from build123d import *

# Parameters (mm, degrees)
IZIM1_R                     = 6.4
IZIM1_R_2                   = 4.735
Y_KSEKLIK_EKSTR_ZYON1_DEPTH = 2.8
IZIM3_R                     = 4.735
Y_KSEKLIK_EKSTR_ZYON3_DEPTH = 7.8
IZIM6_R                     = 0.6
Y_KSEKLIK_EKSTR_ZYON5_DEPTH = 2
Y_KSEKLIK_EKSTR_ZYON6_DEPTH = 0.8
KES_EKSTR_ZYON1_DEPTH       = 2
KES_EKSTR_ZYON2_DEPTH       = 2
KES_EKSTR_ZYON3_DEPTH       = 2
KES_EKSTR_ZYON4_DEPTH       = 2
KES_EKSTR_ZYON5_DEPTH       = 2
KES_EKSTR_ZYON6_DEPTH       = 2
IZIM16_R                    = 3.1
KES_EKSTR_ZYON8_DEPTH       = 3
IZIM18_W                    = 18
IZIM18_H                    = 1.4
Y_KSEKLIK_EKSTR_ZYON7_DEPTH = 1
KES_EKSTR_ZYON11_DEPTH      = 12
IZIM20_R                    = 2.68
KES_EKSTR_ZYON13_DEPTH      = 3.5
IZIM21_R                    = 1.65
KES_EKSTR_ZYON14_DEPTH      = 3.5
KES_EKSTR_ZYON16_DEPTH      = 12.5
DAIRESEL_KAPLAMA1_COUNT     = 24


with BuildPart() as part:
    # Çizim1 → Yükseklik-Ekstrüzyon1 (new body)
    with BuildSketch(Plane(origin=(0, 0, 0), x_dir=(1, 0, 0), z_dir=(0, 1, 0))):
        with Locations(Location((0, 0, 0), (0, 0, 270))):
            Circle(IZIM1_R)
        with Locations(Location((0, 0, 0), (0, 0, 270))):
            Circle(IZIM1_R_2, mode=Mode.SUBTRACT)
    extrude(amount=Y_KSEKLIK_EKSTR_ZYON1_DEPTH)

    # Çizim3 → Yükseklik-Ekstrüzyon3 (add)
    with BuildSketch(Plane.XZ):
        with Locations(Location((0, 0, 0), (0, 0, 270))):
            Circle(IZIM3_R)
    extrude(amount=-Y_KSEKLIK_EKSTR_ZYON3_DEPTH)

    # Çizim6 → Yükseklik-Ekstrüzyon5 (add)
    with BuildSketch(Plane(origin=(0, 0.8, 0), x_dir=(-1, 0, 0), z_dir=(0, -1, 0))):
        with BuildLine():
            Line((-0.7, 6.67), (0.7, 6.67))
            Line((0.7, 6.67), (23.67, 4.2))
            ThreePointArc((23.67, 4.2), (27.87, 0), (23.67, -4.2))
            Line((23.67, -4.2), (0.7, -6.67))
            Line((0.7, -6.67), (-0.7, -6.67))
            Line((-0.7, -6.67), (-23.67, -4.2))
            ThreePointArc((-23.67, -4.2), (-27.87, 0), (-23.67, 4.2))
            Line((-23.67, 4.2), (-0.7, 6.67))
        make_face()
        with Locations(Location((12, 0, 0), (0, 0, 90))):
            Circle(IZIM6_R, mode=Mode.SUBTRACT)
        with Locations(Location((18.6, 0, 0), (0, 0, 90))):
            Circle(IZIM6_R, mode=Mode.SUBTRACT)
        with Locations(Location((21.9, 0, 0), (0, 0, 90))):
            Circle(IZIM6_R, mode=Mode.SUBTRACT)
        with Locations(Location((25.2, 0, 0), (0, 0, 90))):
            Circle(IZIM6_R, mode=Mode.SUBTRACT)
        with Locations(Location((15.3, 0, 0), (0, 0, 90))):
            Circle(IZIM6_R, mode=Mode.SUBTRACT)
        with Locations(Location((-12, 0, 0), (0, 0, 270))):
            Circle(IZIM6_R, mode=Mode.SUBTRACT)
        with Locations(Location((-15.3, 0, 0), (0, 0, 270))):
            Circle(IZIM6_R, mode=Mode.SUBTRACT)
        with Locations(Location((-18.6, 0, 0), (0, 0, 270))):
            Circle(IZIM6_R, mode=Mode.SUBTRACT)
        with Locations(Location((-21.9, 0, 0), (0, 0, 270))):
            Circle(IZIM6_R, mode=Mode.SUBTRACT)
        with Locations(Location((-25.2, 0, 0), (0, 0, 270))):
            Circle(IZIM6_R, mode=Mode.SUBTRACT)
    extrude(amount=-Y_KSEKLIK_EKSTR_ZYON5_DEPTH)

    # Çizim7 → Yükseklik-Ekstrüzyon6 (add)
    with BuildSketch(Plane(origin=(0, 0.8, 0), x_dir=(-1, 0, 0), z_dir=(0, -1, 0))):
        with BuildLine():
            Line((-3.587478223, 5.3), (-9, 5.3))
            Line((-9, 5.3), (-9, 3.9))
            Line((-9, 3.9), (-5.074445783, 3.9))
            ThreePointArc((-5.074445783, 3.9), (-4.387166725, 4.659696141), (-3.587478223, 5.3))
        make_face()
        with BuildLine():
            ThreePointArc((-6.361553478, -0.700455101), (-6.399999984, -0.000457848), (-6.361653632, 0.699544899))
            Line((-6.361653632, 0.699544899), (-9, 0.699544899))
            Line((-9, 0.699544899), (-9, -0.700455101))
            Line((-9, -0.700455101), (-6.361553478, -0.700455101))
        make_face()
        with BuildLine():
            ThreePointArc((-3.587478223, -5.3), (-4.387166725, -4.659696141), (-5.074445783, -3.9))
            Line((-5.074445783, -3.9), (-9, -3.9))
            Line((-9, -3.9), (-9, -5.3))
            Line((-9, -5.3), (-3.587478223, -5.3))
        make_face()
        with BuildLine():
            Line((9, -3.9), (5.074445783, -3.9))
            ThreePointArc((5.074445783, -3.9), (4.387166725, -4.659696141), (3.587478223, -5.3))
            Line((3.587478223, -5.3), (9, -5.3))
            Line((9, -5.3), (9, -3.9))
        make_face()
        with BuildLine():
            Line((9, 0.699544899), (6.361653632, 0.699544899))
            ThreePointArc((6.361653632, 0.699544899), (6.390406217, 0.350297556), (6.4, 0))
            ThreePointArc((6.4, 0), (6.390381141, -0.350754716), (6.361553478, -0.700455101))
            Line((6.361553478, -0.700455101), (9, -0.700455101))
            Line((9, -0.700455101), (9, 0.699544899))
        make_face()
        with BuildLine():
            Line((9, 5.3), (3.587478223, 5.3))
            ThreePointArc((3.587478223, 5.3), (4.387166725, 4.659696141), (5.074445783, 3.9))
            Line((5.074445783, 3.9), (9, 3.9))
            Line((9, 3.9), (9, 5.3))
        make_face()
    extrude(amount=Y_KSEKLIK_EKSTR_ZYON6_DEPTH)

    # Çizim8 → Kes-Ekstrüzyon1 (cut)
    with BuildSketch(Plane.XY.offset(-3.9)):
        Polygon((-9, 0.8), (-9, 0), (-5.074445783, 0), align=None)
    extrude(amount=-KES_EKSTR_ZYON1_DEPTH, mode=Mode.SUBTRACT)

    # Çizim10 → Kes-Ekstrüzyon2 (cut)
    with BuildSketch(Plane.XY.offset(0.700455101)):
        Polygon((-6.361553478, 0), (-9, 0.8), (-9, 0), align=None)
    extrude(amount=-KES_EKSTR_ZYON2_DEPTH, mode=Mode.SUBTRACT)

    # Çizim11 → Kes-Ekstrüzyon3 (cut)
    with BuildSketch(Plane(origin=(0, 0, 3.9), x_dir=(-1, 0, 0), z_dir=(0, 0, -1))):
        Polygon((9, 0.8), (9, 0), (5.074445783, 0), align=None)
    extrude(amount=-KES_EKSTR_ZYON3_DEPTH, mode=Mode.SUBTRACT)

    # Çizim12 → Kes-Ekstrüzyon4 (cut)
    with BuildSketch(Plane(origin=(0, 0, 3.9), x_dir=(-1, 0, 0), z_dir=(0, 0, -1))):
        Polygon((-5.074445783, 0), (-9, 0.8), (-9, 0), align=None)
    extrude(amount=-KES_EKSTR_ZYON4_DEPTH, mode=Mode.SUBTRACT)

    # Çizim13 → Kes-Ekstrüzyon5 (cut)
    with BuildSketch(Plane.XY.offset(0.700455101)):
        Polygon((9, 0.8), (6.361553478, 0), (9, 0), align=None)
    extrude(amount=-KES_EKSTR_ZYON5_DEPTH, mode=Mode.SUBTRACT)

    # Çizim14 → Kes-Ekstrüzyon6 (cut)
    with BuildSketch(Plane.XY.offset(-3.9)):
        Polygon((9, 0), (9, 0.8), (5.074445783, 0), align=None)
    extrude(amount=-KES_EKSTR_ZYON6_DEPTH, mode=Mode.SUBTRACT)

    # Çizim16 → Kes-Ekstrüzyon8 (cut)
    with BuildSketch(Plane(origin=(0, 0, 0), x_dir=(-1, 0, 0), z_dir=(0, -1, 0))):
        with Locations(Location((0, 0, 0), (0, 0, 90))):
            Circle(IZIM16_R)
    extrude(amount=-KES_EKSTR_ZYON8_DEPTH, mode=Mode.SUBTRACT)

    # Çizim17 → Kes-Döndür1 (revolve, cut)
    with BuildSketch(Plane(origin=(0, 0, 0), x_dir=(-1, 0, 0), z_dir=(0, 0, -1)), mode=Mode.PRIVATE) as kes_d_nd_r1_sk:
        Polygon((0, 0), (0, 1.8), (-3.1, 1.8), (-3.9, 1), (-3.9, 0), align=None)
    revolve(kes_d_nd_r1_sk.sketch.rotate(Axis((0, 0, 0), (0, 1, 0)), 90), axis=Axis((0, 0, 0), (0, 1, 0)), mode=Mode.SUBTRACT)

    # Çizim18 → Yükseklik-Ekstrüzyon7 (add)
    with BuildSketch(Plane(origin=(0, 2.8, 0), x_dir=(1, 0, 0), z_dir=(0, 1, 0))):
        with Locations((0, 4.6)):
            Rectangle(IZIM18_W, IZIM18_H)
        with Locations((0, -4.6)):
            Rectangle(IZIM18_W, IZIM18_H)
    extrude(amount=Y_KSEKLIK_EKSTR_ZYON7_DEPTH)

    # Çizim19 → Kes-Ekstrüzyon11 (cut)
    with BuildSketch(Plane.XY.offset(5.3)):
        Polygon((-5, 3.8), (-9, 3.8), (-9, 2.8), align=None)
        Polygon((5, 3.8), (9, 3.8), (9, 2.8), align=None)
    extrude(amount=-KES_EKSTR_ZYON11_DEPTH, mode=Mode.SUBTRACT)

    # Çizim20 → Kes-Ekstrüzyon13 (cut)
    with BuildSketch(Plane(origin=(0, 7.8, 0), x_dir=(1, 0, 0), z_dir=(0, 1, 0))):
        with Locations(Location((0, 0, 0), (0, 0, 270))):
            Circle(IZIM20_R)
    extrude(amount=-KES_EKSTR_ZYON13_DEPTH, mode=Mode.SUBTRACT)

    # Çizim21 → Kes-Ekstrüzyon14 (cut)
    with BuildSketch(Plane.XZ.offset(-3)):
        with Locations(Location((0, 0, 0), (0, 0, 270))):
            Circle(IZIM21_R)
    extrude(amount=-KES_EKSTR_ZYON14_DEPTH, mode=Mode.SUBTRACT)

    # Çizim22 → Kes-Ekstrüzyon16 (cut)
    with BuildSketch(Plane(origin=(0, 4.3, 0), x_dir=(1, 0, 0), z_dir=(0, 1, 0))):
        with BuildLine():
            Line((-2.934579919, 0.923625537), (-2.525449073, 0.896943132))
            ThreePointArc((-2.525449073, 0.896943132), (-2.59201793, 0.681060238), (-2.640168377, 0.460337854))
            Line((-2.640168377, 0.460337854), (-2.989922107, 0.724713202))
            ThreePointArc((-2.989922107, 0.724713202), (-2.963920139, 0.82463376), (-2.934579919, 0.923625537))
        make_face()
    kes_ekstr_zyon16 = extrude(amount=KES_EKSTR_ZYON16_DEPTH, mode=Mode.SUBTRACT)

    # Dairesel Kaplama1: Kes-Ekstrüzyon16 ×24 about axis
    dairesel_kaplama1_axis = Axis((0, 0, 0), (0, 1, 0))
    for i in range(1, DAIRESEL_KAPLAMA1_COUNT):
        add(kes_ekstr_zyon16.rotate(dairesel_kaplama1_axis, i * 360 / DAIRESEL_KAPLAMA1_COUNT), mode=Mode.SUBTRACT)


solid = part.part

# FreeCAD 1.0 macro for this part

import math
import FreeCAD as App
import Part
import Sketcher
from FreeCAD import Vector
Q = App.Units.Quantity


def add_polygon(sketch, points):
    """Adds a closed chain of lines whose ends are joined by coincident constraints."""
    first, n = sketch.GeometryCount, len(points)
    for a, b in zip(points, points[1:] + points[:1]):
        sketch.addGeometry(Part.LineSegment(App.Vector(*a, 0), App.Vector(*b, 0)), False)
    for i in range(n):
        sketch.addConstraint(Sketcher.Constraint("Coincident", first + i, 2, first + (i + 1) % n, 1))

doc = App.newDocument("Part")
params = doc.addObject("Spreadsheet::Sheet", "Params")
for row, (alias, value) in enumerate([
    ("sketch1_diameter", "12.8 mm"),
    ("sketch1_diameter2", "9.47 mm"),
    ("pad1_length", "2.8 mm"),
    ("sketch2_diameter", "9.47 mm"),
    ("pad2_length", "7.8 mm"),
    ("sketch3_diameter", "1.2 mm"),
    ("sketch3_radius", "4.2 mm"),
    ("sketch3_width", "1.4 mm"),
    ("pad3_length", "2 mm"),
    ("sketch4_radius", "6.4 mm"),
    ("sketch4_height", "1.4 mm"),
    ("pad4_length", "0.8 mm"),
    ("sketch5_height", "0.8 mm"),
    ("pocket1_length", "2 mm"),
    ("sketch6_height", "0.8 mm"),
    ("pocket2_length", "2 mm"),
    ("sketch7_height", "0.8 mm"),
    ("pocket3_length", "2 mm"),
    ("sketch8_height", "0.8 mm"),
    ("pocket4_length", "2 mm"),
    ("sketch9_height", "0.8 mm"),
    ("pocket5_length", "2 mm"),
    ("sketch10_height", "0.8 mm"),
    ("pocket6_length", "2 mm"),
    ("sketch11_diameter", "6.2 mm"),
    ("pocket7_length", "3 mm"),
    ("sketch12_height", "1 mm"),
    ("sketch12_width", "3.1 mm"),
    ("sketch12_width2", "3.9 mm"),
    ("groove_angle", "360 deg"),
    ("sketch13_width", "18 mm"),
    ("sketch13_height", "1.4 mm"),
    ("pad5_length", "1 mm"),
    ("sketch14_width", "4 mm"),
    ("sketch14_height", "1 mm"),
    ("pocket8_length", "12 mm"),
    ("sketch15_diameter", "5.36 mm"),
    ("pocket9_length", "3.5 mm"),
    ("sketch16_diameter", "3.3 mm"),
    ("pocket10_length", "3.5 mm"),
    ("sketch17_radius", "2.68 mm"),
    ("sketch17_length", "0.41 mm"),
    ("pocket11_length", "12.5 mm"),
], start=1):
    params.set(f"A{row}", alias)
    params.set(f"B{row}", "=" + value)
    params.setAlias(f"B{row}", alias)

body = doc.addObject("PartDesign::Body", "Body")

# Sketch on XZ plane
sketch1 = body.newObject("Sketcher::SketchObject", "Sketch")
sketch1.AttachmentSupport = (doc.getObject("XZ_Plane"), [""])
sketch1.MapMode = "FlatFace"
sketch1.addGeometry([
    Part.Circle(Vector(0, 0, 0), Vector(0, 0, 1), 6.4),
    Part.Circle(Vector(0, 0, 0), Vector(0, 0, 1), 4.7),
], False)
sketch1.addConstraint([
    Sketcher.Constraint("Coincident", 0, 3, -1, 1),
    Sketcher.Constraint("Coincident", 1, 3, -1, 1),
    Sketcher.Constraint("Diameter", 0, Q("12.8 mm")),
    Sketcher.Constraint("Diameter", 1, Q("9.47 mm")),
])
sketch1.setExpression("Constraints[2]", "Params.sketch1_diameter")
sketch1.setExpression("Constraints[3]", "Params.sketch1_diameter2")
pad1 = body.newObject("PartDesign::Pad", "Pad")
pad1.Profile = sketch1
pad1.setExpression("Length", "Params.pad1_length")
pad1.Reversed = True

# Sketch on XZ plane
sketch2 = body.newObject("Sketcher::SketchObject", "Sketch001")
sketch2.AttachmentSupport = (doc.getObject("XZ_Plane"), [""])
sketch2.MapMode = "FlatFace"
sketch2.addGeometry(Part.Circle(Vector(0, 0, 0), Vector(0, 0, 1), 4.7), False)
sketch2.addConstraint([
    Sketcher.Constraint("Coincident", 0, 3, -1, 1),
    Sketcher.Constraint("Diameter", 0, Q("9.47 mm")),
])
sketch2.setExpression("Constraints[1]", "Params.sketch2_diameter")
pad2 = body.newObject("PartDesign::Pad", "Pad001")
pad2.Profile = sketch2
pad2.setExpression("Length", "Params.pad2_length")
pad2.Reversed = True

# Sketch on XZ plane
sketch3 = body.newObject("Sketcher::SketchObject", "Sketch002")
sketch3.AttachmentSupport = (doc.getObject("XZ_Plane"), [""])
sketch3.MapMode = "FlatFace"
sketch3.AttachmentOffset = App.Placement(Vector(0, 0, -0.8), App.Rotation())
sketch3.addGeometry([
    Part.LineSegment(Vector(-0.7, -6.7, 0), Vector(0.7, -6.7, 0)),  # 0
    Part.LineSegment(Vector(0.7, -6.7, 0), Vector(23.7, -4.2, 0)),  # 1
    Part.ArcOfCircle(Part.Circle(Vector(23.7, 0, 0), Vector(0, 0, 1), 4.2), math.radians(-90), math.radians(90)),  # 2
    Part.LineSegment(Vector(23.7, 4.2, 0), Vector(0.7, 6.7, 0)),  # 3
    Part.LineSegment(Vector(0.7, 6.7, 0), Vector(-0.7, 6.7, 0)),  # 4
    Part.LineSegment(Vector(-0.7, 6.7, 0), Vector(-23.7, 4.2, 0)),  # 5
    Part.ArcOfCircle(Part.Circle(Vector(-23.7, 0, 0), Vector(0, 0, 1), 4.2), math.radians(90), math.radians(270)),  # 6
    Part.LineSegment(Vector(-23.7, -4.2, 0), Vector(-0.7, -6.7, 0)),  # 7
    Part.Circle(Vector(-25.2, 0, 0), Vector(0, 0, 1), 0.6),  # 8
    Part.Circle(Vector(-21.9, 0, 0), Vector(0, 0, 1), 0.6),  # 9
    Part.Circle(Vector(-18.6, 0, 0), Vector(0, 0, 1), 0.6),  # 10
    Part.Circle(Vector(-15.3, 0, 0), Vector(0, 0, 1), 0.6),  # 11
    Part.Circle(Vector(-12, 0, 0), Vector(0, 0, 1), 0.6),  # 12
    Part.Circle(Vector(12, 0, 0), Vector(0, 0, 1), 0.6),  # 13
    Part.Circle(Vector(15.3, 0, 0), Vector(0, 0, 1), 0.6),  # 14
    Part.Circle(Vector(18.6, 0, 0), Vector(0, 0, 1), 0.6),  # 15
    Part.Circle(Vector(21.9, 0, 0), Vector(0, 0, 1), 0.6),  # 16
    Part.Circle(Vector(25.2, 0, 0), Vector(0, 0, 1), 0.6),  # 17
], False)
sketch3.addConstraint([
    Sketcher.Constraint("Coincident", 0, 2, 1, 1),
    Sketcher.Constraint("Coincident", 1, 2, 2, 1),
    Sketcher.Constraint("Coincident", 2, 2, 3, 1),
    Sketcher.Constraint("Coincident", 3, 2, 4, 1),
    Sketcher.Constraint("Coincident", 4, 2, 5, 1),
    Sketcher.Constraint("Coincident", 5, 2, 6, 1),
    Sketcher.Constraint("Coincident", 6, 2, 7, 1),
    Sketcher.Constraint("Coincident", 7, 2, 0, 1),
    Sketcher.Constraint("Horizontal", 0),
    Sketcher.Constraint("Horizontal", 4),
    Sketcher.Constraint("Equal", 2, 6),
    Sketcher.Constraint("Equal", 8, 9),
    Sketcher.Constraint("Equal", 9, 10),
    Sketcher.Constraint("Equal", 10, 11),
    Sketcher.Constraint("Equal", 11, 12),
    Sketcher.Constraint("Equal", 12, 13),
    Sketcher.Constraint("Equal", 13, 14),
    Sketcher.Constraint("Equal", 14, 15),
    Sketcher.Constraint("Equal", 15, 16),
    Sketcher.Constraint("Equal", 16, 17),
    Sketcher.Constraint("Symmetric", 2, 3, 6, 3, -1, 1),
    Sketcher.Constraint("Symmetric", 12, 3, 13, 3, -1, 1),
    Sketcher.Constraint("Symmetric", 11, 3, 14, 3, -1, 1),
    Sketcher.Constraint("Symmetric", 10, 3, 15, 3, -1, 1),
    Sketcher.Constraint("Symmetric", 9, 3, 16, 3, -1, 1),
    Sketcher.Constraint("Symmetric", 8, 3, 17, 3, -1, 1),
    Sketcher.Constraint("Symmetric", 0, 2, 4, 2, -1, 1),
    Sketcher.Constraint("Symmetric", 2, 2, 5, 2, -2),
    Sketcher.Constraint("PointOnObject", 8, 3, -1),
    Sketcher.Constraint("PointOnObject", 9, 3, -1),
    Sketcher.Constraint("PointOnObject", 10, 3, -1),
    Sketcher.Constraint("PointOnObject", 11, 3, -1),
    Sketcher.Constraint("PointOnObject", 12, 3, -1),
    Sketcher.Constraint("Parallel", 1, 5),
    Sketcher.Constraint("Parallel", 3, 7),
    Sketcher.Constraint("Vertical", 2, 3, 1, 2),
    Sketcher.Constraint("Vertical", 0, 2, 3, 2),
    Sketcher.Constraint("Vertical", 5, 2, 6, 2),
    Sketcher.Constraint("Diameter", 8, Q("1.2 mm")),
    Sketcher.Constraint("Radius", 2, Q("4.2 mm")),
    Sketcher.Constraint("DistanceX", 0, 1, 0, 2, Q("1.4 mm")),
    Sketcher.Constraint("DistanceX", 12, 3, -1, 1, Q("12 mm")),
    Sketcher.Constraint("DistanceX", 11, 3, 0, 2, Q("16 mm")),
    Sketcher.Constraint("DistanceX", 8, 3, -1, 1, Q("25.2 mm")),
    Sketcher.Constraint("DistanceX", 9, 3, -1, 1, Q("21.9 mm")),
    Sketcher.Constraint("DistanceX", 10, 3, -1, 1, Q("18.6 mm")),
    Sketcher.Constraint("DistanceX", -1, 1, 2, 3, Q("23.67 mm")),
    Sketcher.Constraint("DistanceY", 0, 2, -1, 1, Q("6.67 mm")),
])
sketch3.setExpression("Constraints[38]", "Params.sketch3_diameter")
sketch3.setExpression("Constraints[39]", "Params.sketch3_radius")
sketch3.setExpression("Constraints[40]", "Params.sketch3_width")
pad3 = body.newObject("PartDesign::Pad", "Pad002")
pad3.Profile = sketch3
pad3.setExpression("Length", "Params.pad3_length")
pad3.Reversed = True

# Sketch on XZ plane
sketch4 = body.newObject("Sketcher::SketchObject", "Sketch003")
sketch4.AttachmentSupport = (doc.getObject("XZ_Plane"), [""])
sketch4.MapMode = "FlatFace"
sketch4.AttachmentOffset = App.Placement(Vector(0, 0, -0.8), App.Rotation())
sketch4.addGeometry([
    Part.LineSegment(Vector(3.6, -5.3, 0), Vector(9, -5.3, 0)),  # 0
    Part.LineSegment(Vector(9, -5.3, 0), Vector(9, -3.9, 0)),  # 1
    Part.LineSegment(Vector(9, -3.9, 0), Vector(5.1, -3.9, 0)),  # 2
    Part.ArcOfCircle(Part.Circle(Vector(0, 0, 0), Vector(0, 0, 1), 6.4), math.radians(-55.91), math.radians(-37.54)),  # 3
    Part.ArcOfCircle(Part.Circle(Vector(0, 0, 0), Vector(0, 0, 1), 6.4), math.radians(-6.28), math.radians(6.28)),  # 4
    Part.LineSegment(Vector(6.4, -0.7, 0), Vector(9, -0.7, 0)),  # 5
    Part.LineSegment(Vector(9, -0.7, 0), Vector(9, 0.7, 0)),  # 6
    Part.LineSegment(Vector(9, 0.7, 0), Vector(6.4, 0.7, 0)),  # 7
    Part.ArcOfCircle(Part.Circle(Vector(0, 0, 0), Vector(0, 0, 1), 6.4), math.radians(37.54), math.radians(55.91)),  # 8
    Part.LineSegment(Vector(5.1, 3.9, 0), Vector(9, 3.9, 0)),  # 9
    Part.LineSegment(Vector(9, 3.9, 0), Vector(9, 5.3, 0)),  # 10
    Part.LineSegment(Vector(9, 5.3, 0), Vector(3.6, 5.3, 0)),  # 11
    Part.LineSegment(Vector(-9, 3.9, 0), Vector(-5.1, 3.9, 0)),  # 12
    Part.ArcOfCircle(Part.Circle(Vector(0, 0, 0), Vector(0, 0, 1), 6.4), math.radians(124.09), math.radians(142.46)),  # 13
    Part.LineSegment(Vector(-3.6, 5.3, 0), Vector(-9, 5.3, 0)),  # 14
    Part.LineSegment(Vector(-9, 5.3, 0), Vector(-9, 3.9, 0)),  # 15
    Part.LineSegment(Vector(-9, -0.7, 0), Vector(-6.4, -0.7, 0)),  # 16
    Part.ArcOfCircle(Part.Circle(Vector(0, 0, 0), Vector(0, 0, 1), 6.4), math.radians(-180), math.radians(-173.72)),  # 17
    Part.ArcOfCircle(Part.Circle(Vector(0, 0, 0), Vector(0, 0, 1), 6.4), math.radians(173.72), math.radians(180)),  # 18
    Part.LineSegment(Vector(-6.4, 0.7, 0), Vector(-9, 0.7, 0)),  # 19
    Part.LineSegment(Vector(-9, 0.7, 0), Vector(-9, -0.7, 0)),  # 20
    Part.LineSegment(Vector(-9, -5.3, 0), Vector(-3.6, -5.3, 0)),  # 21
    Part.ArcOfCircle(Part.Circle(Vector(0, 0, 0), Vector(0, 0, 1), 6.4), math.radians(-142.46), math.radians(-124.09)),  # 22
    Part.LineSegment(Vector(-5.1, -3.9, 0), Vector(-9, -3.9, 0)),  # 23
    Part.LineSegment(Vector(-9, -3.9, 0), Vector(-9, -5.3, 0)),  # 24
], False)
sketch4.addConstraint([
    Sketcher.Constraint("Coincident", 0, 2, 1, 1),
    Sketcher.Constraint("Coincident", 1, 2, 2, 1),
    Sketcher.Constraint("Coincident", 2, 2, 3, 2),
    Sketcher.Constraint("Coincident", 3, 1, 0, 1),
    Sketcher.Constraint("Coincident", 4, 1, 5, 1),
    Sketcher.Constraint("Coincident", 5, 2, 6, 1),
    Sketcher.Constraint("Coincident", 6, 2, 7, 1),
    Sketcher.Constraint("Coincident", 7, 2, 4, 2),
    Sketcher.Constraint("Coincident", 8, 1, 9, 1),
    Sketcher.Constraint("Coincident", 9, 2, 10, 1),
    Sketcher.Constraint("Coincident", 10, 2, 11, 1),
    Sketcher.Constraint("Coincident", 11, 2, 8, 2),
    Sketcher.Constraint("Coincident", 12, 2, 13, 2),
    Sketcher.Constraint("Coincident", 13, 1, 14, 1),
    Sketcher.Constraint("Coincident", 14, 2, 15, 1),
    Sketcher.Constraint("Coincident", 15, 2, 12, 1),
    Sketcher.Constraint("Coincident", 16, 2, 17, 2),
    Sketcher.Constraint("Tangent", 17, 1, 18, 2),
    Sketcher.Constraint("Coincident", 18, 1, 19, 1),
    Sketcher.Constraint("Coincident", 19, 2, 20, 1),
    Sketcher.Constraint("Coincident", 20, 2, 16, 1),
    Sketcher.Constraint("Coincident", 21, 2, 22, 2),
    Sketcher.Constraint("Coincident", 22, 1, 23, 1),
    Sketcher.Constraint("Coincident", 23, 2, 24, 1),
    Sketcher.Constraint("Coincident", 24, 2, 21, 1),
    Sketcher.Constraint("Horizontal", 0),
    Sketcher.Constraint("Vertical", 1),
    Sketcher.Constraint("Horizontal", 2),
    Sketcher.Constraint("Horizontal", 5),
    Sketcher.Constraint("Vertical", 6),
    Sketcher.Constraint("Horizontal", 7),
    Sketcher.Constraint("Horizontal", 9),
    Sketcher.Constraint("Vertical", 10),
    Sketcher.Constraint("Horizontal", 11),
    Sketcher.Constraint("Horizontal", 12),
    Sketcher.Constraint("Horizontal", 14),
    Sketcher.Constraint("Vertical", 15),
    Sketcher.Constraint("Horizontal", 16),
    Sketcher.Constraint("Horizontal", 19),
    Sketcher.Constraint("Vertical", 20),
    Sketcher.Constraint("Horizontal", 21),
    Sketcher.Constraint("Horizontal", 23),
    Sketcher.Constraint("Vertical", 24),
    Sketcher.Constraint("Coincident", 3, 3, -1, 1),
    Sketcher.Constraint("Coincident", 4, 3, -1, 1),
    Sketcher.Constraint("Coincident", 8, 3, -1, 1),
    Sketcher.Constraint("Coincident", 13, 3, -1, 1),
    Sketcher.Constraint("Coincident", 17, 3, -1, 1),
    Sketcher.Constraint("Coincident", 22, 3, -1, 1),
    Sketcher.Constraint("Equal", 3, 4),
    Sketcher.Constraint("Equal", 4, 8),
    Sketcher.Constraint("Equal", 8, 13),
    Sketcher.Constraint("Equal", 13, 17),
    Sketcher.Constraint("Equal", 17, 18),
    Sketcher.Constraint("Equal", 18, 22),
    Sketcher.Constraint("Symmetric", 0, 2, 14, 2, -1, 1),
    Sketcher.Constraint("Symmetric", 9, 2, 23, 2, -1, 1),
    Sketcher.Constraint("Symmetric", 10, 2, 14, 2, -2),
    Sketcher.Constraint("Symmetric", 6, 2, 19, 2, -2),
    Sketcher.Constraint("PointOnObject", 17, 1, -1),
    Sketcher.Constraint("Horizontal", 9, 2, 12, 2),
    Sketcher.Constraint("Horizontal", 5, 2, 16, 2),
    Sketcher.Constraint("Horizontal", 3, 1, 21, 2),
    Sketcher.Constraint("Horizontal", 2, 2, 22, 1),
    Sketcher.Constraint("Vertical", 1, 2, 5, 2),
    Sketcher.Constraint("Equal", 1, 6),
    Sketcher.Constraint("Radius", 3, Q("6.4 mm")),
    Sketcher.Constraint("DistanceY", 1, 1, 1, 2, Q("1.4 mm")),
    Sketcher.Constraint("DistanceX", -1, 1, 0, 2, Q("9 mm")),
    Sketcher.Constraint("DistanceY", 0, 2, -1, 1, Q("5.3 mm")),
    Sketcher.Constraint("DistanceX", 7, 2, 4, 1, Q("0.0001 mm")),
])
sketch4.setExpression("Constraints[66]", "Params.sketch4_radius")
sketch4.setExpression("Constraints[67]", "Params.sketch4_height")
pad4 = body.newObject("PartDesign::Pad", "Pad003")
pad4.Profile = sketch4
pad4.setExpression("Length", "Params.pad4_length")

# Sketch on XY plane
sketch5 = body.newObject("Sketcher::SketchObject", "Sketch004")
sketch5.AttachmentSupport = (doc.getObject("XY_Plane"), [""])
sketch5.MapMode = "FlatFace"
sketch5.AttachmentOffset = App.Placement(Vector(0, 0, -3.9), App.Rotation())
add_polygon(sketch5, [(-9, 0.8), (-9, 0), (-5.1, 0)])  # lines 0-2
sketch5.addConstraint([
    Sketcher.Constraint("Vertical", 0),
    Sketcher.Constraint("Horizontal", 1),
    Sketcher.Constraint("PointOnObject", 0, 2, -1),
    Sketcher.Constraint("DistanceY", 0, 2, 0, 1, Q("0.8 mm")),
    Sketcher.Constraint("DistanceX", 0, 2, -1, 1, Q("9 mm")),
    Sketcher.Constraint("DistanceX", 1, 1, 1, 2, Q("3.925554 mm")),
])
sketch5.setExpression("Constraints[6]", "Params.sketch5_height")
pocket1 = body.newObject("PartDesign::Pocket", "Pocket")
pocket1.Profile = sketch5
pocket1.setExpression("Length", "Params.pocket1_length")

# Sketch on XY plane
sketch6 = body.newObject("Sketcher::SketchObject", "Sketch005")
sketch6.AttachmentSupport = (doc.getObject("XY_Plane"), [""])
sketch6.MapMode = "FlatFace"
sketch6.AttachmentOffset = App.Placement(Vector(0, 0, 0.700455), App.Rotation())
add_polygon(sketch6, [(-6.4, 0), (-9, 0.8), (-9, 0)])  # lines 0-2
sketch6.addConstraint([
    Sketcher.Constraint("Vertical", 1),
    Sketcher.Constraint("Horizontal", 2),
    Sketcher.Constraint("PointOnObject", 1, 2, -1),
    Sketcher.Constraint("DistanceY", 1, 2, 1, 1, Q("0.8 mm")),
    Sketcher.Constraint("DistanceX", 0, 2, -1, 1, Q("9 mm")),
    Sketcher.Constraint("DistanceX", 2, 1, 2, 2, Q("2.638447 mm")),
])
sketch6.setExpression("Constraints[6]", "Params.sketch6_height")
pocket2 = body.newObject("PartDesign::Pocket", "Pocket001")
pocket2.Profile = sketch6
pocket2.setExpression("Length", "Params.pocket2_length")

# Sketch on XY plane
sketch7 = body.newObject("Sketcher::SketchObject", "Sketch006")
sketch7.AttachmentSupport = (doc.getObject("XY_Plane"), [""])
sketch7.MapMode = "FlatFace"
sketch7.AttachmentOffset = App.Placement(Vector(0, 0, 3.9), App.Rotation())
add_polygon(sketch7, [(-9, 0), (-9, 0.8), (-5.1, 0)])  # lines 0-2
sketch7.addConstraint([
    Sketcher.Constraint("Vertical", 0),
    Sketcher.Constraint("Horizontal", 2),
    Sketcher.Constraint("PointOnObject", 1, 2, -1),
    Sketcher.Constraint("DistanceY", 0, 1, 0, 2, Q("0.8 mm")),
    Sketcher.Constraint("DistanceX", 0, 2, -1, 1, Q("9 mm")),
    Sketcher.Constraint("DistanceX", 2, 2, 2, 1, Q("3.925554 mm")),
])
sketch7.setExpression("Constraints[6]", "Params.sketch7_height")
pocket3 = body.newObject("PartDesign::Pocket", "Pocket002")
pocket3.Profile = sketch7
pocket3.setExpression("Length", "Params.pocket3_length")
pocket3.Reversed = True

# Sketch on XY plane
sketch8 = body.newObject("Sketcher::SketchObject", "Sketch007")
sketch8.AttachmentSupport = (doc.getObject("XY_Plane"), [""])
sketch8.MapMode = "FlatFace"
sketch8.AttachmentOffset = App.Placement(Vector(0, 0, 3.9), App.Rotation())
add_polygon(sketch8, [(5.1, 0), (9, 0.8), (9, 0)])  # lines 0-2
sketch8.addConstraint([
    Sketcher.Constraint("Vertical", 1),
    Sketcher.Constraint("Horizontal", 2),
    Sketcher.Constraint("PointOnObject", 1, 2, -1),
    Sketcher.Constraint("DistanceY", 1, 2, 1, 1, Q("0.8 mm")),
    Sketcher.Constraint("DistanceX", -1, 1, 0, 2, Q("9 mm")),
    Sketcher.Constraint("DistanceX", 2, 2, 2, 1, Q("3.925554 mm")),
])
sketch8.setExpression("Constraints[6]", "Params.sketch8_height")
pocket4 = body.newObject("PartDesign::Pocket", "Pocket003")
pocket4.Profile = sketch8
pocket4.setExpression("Length", "Params.pocket4_length")
pocket4.Reversed = True

# Sketch on XY plane
sketch9 = body.newObject("Sketcher::SketchObject", "Sketch008")
sketch9.AttachmentSupport = (doc.getObject("XY_Plane"), [""])
sketch9.MapMode = "FlatFace"
sketch9.AttachmentOffset = App.Placement(Vector(0, 0, 0.700455), App.Rotation())
add_polygon(sketch9, [(9, 0.8), (6.4, 0), (9, 0)])  # lines 0-2
sketch9.addConstraint([
    Sketcher.Constraint("Horizontal", 1),
    Sketcher.Constraint("Vertical", 2),
    Sketcher.Constraint("PointOnObject", 0, 2, -1),
    Sketcher.Constraint("DistanceY", 2, 1, 2, 2, Q("0.8 mm")),
    Sketcher.Constraint("DistanceX", -1, 1, 1, 2, Q("9 mm")),
    Sketcher.Constraint("DistanceX", 1, 1, 1, 2, Q("2.638447 mm")),
])
sketch9.setExpression("Constraints[6]", "Params.sketch9_height")
pocket5 = body.newObject("PartDesign::Pocket", "Pocket004")
pocket5.Profile = sketch9
pocket5.setExpression("Length", "Params.pocket5_length")

# Sketch on XY plane
sketch10 = body.newObject("Sketcher::SketchObject", "Sketch009")
sketch10.AttachmentSupport = (doc.getObject("XY_Plane"), [""])
sketch10.MapMode = "FlatFace"
sketch10.AttachmentOffset = App.Placement(Vector(0, 0, -3.9), App.Rotation())
add_polygon(sketch10, [(9, 0), (9, 0.8), (5.1, 0)])  # lines 0-2
sketch10.addConstraint([
    Sketcher.Constraint("Vertical", 0),
    Sketcher.Constraint("Horizontal", 2),
    Sketcher.Constraint("PointOnObject", 1, 2, -1),
    Sketcher.Constraint("DistanceY", 0, 1, 0, 2, Q("0.8 mm")),
    Sketcher.Constraint("DistanceX", -1, 1, 0, 2, Q("9 mm")),
    Sketcher.Constraint("DistanceX", 2, 1, 2, 2, Q("3.925554 mm")),
])
sketch10.setExpression("Constraints[6]", "Params.sketch10_height")
pocket6 = body.newObject("PartDesign::Pocket", "Pocket005")
pocket6.Profile = sketch10
pocket6.setExpression("Length", "Params.pocket6_length")

# Sketch on XZ plane
sketch11 = body.newObject("Sketcher::SketchObject", "Sketch010")
sketch11.AttachmentSupport = (doc.getObject("XZ_Plane"), [""])
sketch11.MapMode = "FlatFace"
sketch11.addGeometry(Part.Circle(Vector(0, 0, 0), Vector(0, 0, 1), 3.1), False)
sketch11.addConstraint([
    Sketcher.Constraint("Coincident", 0, 3, -1, 1),
    Sketcher.Constraint("Diameter", 0, Q("6.2 mm")),
])
sketch11.setExpression("Constraints[1]", "Params.sketch11_diameter")
pocket7 = body.newObject("PartDesign::Pocket", "Pocket006")
pocket7.Profile = sketch11
pocket7.setExpression("Length", "Params.pocket7_length")

# Sketch on XY plane
sketch12 = body.newObject("Sketcher::SketchObject", "Sketch011")
sketch12.AttachmentSupport = (doc.getObject("XY_Plane"), [""])
sketch12.MapMode = "FlatFace"
add_polygon(sketch12, [(0, 0), (0, 1.8), (3.1, 1.8), (3.9, 1), (3.9, 0)])  # lines 0-4
sketch12.addConstraint([
    Sketcher.Constraint("Vertical", 0),
    Sketcher.Constraint("Horizontal", 1),
    Sketcher.Constraint("Vertical", 3),
    Sketcher.Constraint("Horizontal", 4),
    Sketcher.Constraint("Coincident", 4, 2, -1, 1),
    Sketcher.Constraint("DistanceY", 3, 2, 3, 1, Q("1 mm")),
    Sketcher.Constraint("Angle", 2, Q("-45 deg")),
    Sketcher.Constraint("DistanceX", 1, 1, 1, 2, Q("3.1 mm")),
    Sketcher.Constraint("DistanceX", 4, 2, 4, 1, Q("3.9 mm")),
])
sketch12.setExpression("Constraints[10]", "Params.sketch12_height")
sketch12.setExpression("Constraints[12]", "Params.sketch12_width")
sketch12.setExpression("Constraints[13]", "Params.sketch12_width2")
groove = body.newObject("PartDesign::Groove", "Groove")
groove.Profile = sketch12
groove.ReferenceAxis = (sketch12, ["V_Axis"])
groove.setExpression("Angle", "Params.groove_angle")

# Sketch on XZ plane
sketch13 = body.newObject("Sketcher::SketchObject", "Sketch012")
sketch13.AttachmentSupport = (doc.getObject("XZ_Plane"), [""])
sketch13.MapMode = "FlatFace"
sketch13.AttachmentOffset = App.Placement(Vector(0, 0, -2.8), App.Rotation())
add_polygon(sketch13, [(-9, -5.3), (-9, -3.9), (9, -3.9), (9, -5.3)])  # lines 0-3
add_polygon(sketch13, [(-9, 3.9), (-9, 5.3), (9, 5.3), (9, 3.9)])  # lines 4-7
sketch13.addConstraint([
    Sketcher.Constraint("Vertical", 0),
    Sketcher.Constraint("Horizontal", 1),
    Sketcher.Constraint("Vertical", 2),
    Sketcher.Constraint("Horizontal", 3),
    Sketcher.Constraint("Vertical", 4),
    Sketcher.Constraint("Horizontal", 5),
    Sketcher.Constraint("Vertical", 6),
    Sketcher.Constraint("Horizontal", 7),
    Sketcher.Constraint("Symmetric", 2, 2, 4, 2, -1, 1),
    Sketcher.Constraint("Symmetric", 0, 2, 6, 2, -1, 1),
    Sketcher.Constraint("Vertical", 3, 2, 4, 2),
    Sketcher.Constraint("DistanceX", 1, 1, 1, 2, Q("18 mm")),
    Sketcher.Constraint("DistanceY", 0, 1, 0, 2, Q("1.4 mm")),
    Sketcher.Constraint("DistanceY", 0, 2, -1, 1, Q("3.9 mm")),
])
sketch13.setExpression("Constraints[19]", "Params.sketch13_width")
sketch13.setExpression("Constraints[20]", "Params.sketch13_height")
pad5 = body.newObject("PartDesign::Pad", "Pad004")
pad5.Profile = sketch13
pad5.setExpression("Length", "Params.pad5_length")
pad5.Reversed = True

# Sketch on XY plane
sketch14 = body.newObject("Sketcher::SketchObject", "Sketch013")
sketch14.AttachmentSupport = (doc.getObject("XY_Plane"), [""])
sketch14.MapMode = "FlatFace"
sketch14.AttachmentOffset = App.Placement(Vector(0, 0, 5.3), App.Rotation())
add_polygon(sketch14, [(-5, 3.8), (-9, 3.8), (-9, 2.8)])  # lines 0-2
add_polygon(sketch14, [(9, 3.8), (5, 3.8), (9, 2.8)])  # lines 3-5
sketch14.addConstraint([
    Sketcher.Constraint("Horizontal", 0),
    Sketcher.Constraint("Vertical", 1),
    Sketcher.Constraint("Horizontal", 3),
    Sketcher.Constraint("Vertical", 5),
    Sketcher.Constraint("Symmetric", 2, 2, 3, 2, -2),
    Sketcher.Constraint("Symmetric", 1, 2, 4, 2, -2),
    Sketcher.Constraint("DistanceX", 0, 2, 0, 1, Q("4 mm")),
    Sketcher.Constraint("DistanceY", 1, 2, 1, 1, Q("1 mm")),
    Sketcher.Constraint("DistanceX", 0, 2, -1, 1, Q("9 mm")),
    Sketcher.Constraint("DistanceY", -1, 1, 0, 2, Q("3.8 mm")),
])
sketch14.setExpression("Constraints[12]", "Params.sketch14_width")
sketch14.setExpression("Constraints[13]", "Params.sketch14_height")
pocket8 = body.newObject("PartDesign::Pocket", "Pocket007")
pocket8.Profile = sketch14
pocket8.setExpression("Length", "Params.pocket8_length")

# Sketch on XZ plane
sketch15 = body.newObject("Sketcher::SketchObject", "Sketch014")
sketch15.AttachmentSupport = (doc.getObject("XZ_Plane"), [""])
sketch15.MapMode = "FlatFace"
sketch15.AttachmentOffset = App.Placement(Vector(0, 0, -7.8), App.Rotation())
sketch15.addGeometry(Part.Circle(Vector(0, 0, 0), Vector(0, 0, 1), 2.7), False)
sketch15.addConstraint([
    Sketcher.Constraint("Coincident", 0, 3, -1, 1),
    Sketcher.Constraint("Diameter", 0, Q("5.36 mm")),
])
sketch15.setExpression("Constraints[1]", "Params.sketch15_diameter")
pocket9 = body.newObject("PartDesign::Pocket", "Pocket008")
pocket9.Profile = sketch15
pocket9.setExpression("Length", "Params.pocket9_length")
pocket9.Reversed = True

# Sketch on XZ plane
sketch16 = body.newObject("Sketcher::SketchObject", "Sketch015")
sketch16.AttachmentSupport = (doc.getObject("XZ_Plane"), [""])
sketch16.MapMode = "FlatFace"
sketch16.AttachmentOffset = App.Placement(Vector(0, 0, -3), App.Rotation())
sketch16.addGeometry(Part.Circle(Vector(0, 0, 0), Vector(0, 0, 1), 1.6), False)
sketch16.addConstraint([
    Sketcher.Constraint("Coincident", 0, 3, -1, 1),
    Sketcher.Constraint("Diameter", 0, Q("3.3 mm")),
])
sketch16.setExpression("Constraints[1]", "Params.sketch16_diameter")
pocket10 = body.newObject("PartDesign::Pocket", "Pocket009")
pocket10.Profile = sketch16
pocket10.setExpression("Length", "Params.pocket10_length")

# Sketch on XZ plane
sketch17 = body.newObject("Sketcher::SketchObject", "Sketch016")
sketch17.AttachmentSupport = (doc.getObject("XZ_Plane"), [""])
sketch17.MapMode = "FlatFace"
sketch17.AttachmentOffset = App.Placement(Vector(0, 0, -4.3), App.Rotation())
sketch17.addGeometry([
    Part.LineSegment(Vector(-2.53, -0.9, 0), Vector(-2.93, -0.92, 0)),
    Part.ArcOfCircle(Part.Circle(Vector(0, 0, 0), Vector(0, 0, 1), 3.08), math.radians(-166.38), math.radians(-162.53)),
    Part.LineSegment(Vector(-2.99, -0.72, 0), Vector(-2.64, -0.46, 0)),
    Part.ArcOfCircle(Part.Circle(Vector(0, 0, 0), Vector(0, 0, 1), 2.68), math.radians(-170.11), math.radians(-160.45)),
], False)
sketch17.addConstraint([
    Sketcher.Constraint("Coincident", 0, 2, 1, 2),
    Sketcher.Constraint("Coincident", 1, 1, 2, 1),
    Sketcher.Constraint("Coincident", 2, 2, 3, 1),
    Sketcher.Constraint("Coincident", 3, 2, 0, 1),
    Sketcher.Constraint("Coincident", 1, 3, -1, 1),
    Sketcher.Constraint("Coincident", 3, 3, -1, 1),
    Sketcher.Constraint("Radius", 3, Q("2.68 mm")),
    Sketcher.Constraint("Radius", 1, Q("3.0765 mm")),
    Sketcher.Constraint("Distance", 0, Q("0.41 mm")),
    Sketcher.Constraint("Distance", 2, Q("0.438431 mm")),
    Sketcher.Constraint("DistanceX", 0, 2, -1, 1, Q("2.93458 mm")),
    Sketcher.Constraint("DistanceX", 2, 2, -1, 1, Q("2.640168 mm")),
])
sketch17.setExpression("Constraints[6]", "Params.sketch17_radius")
sketch17.setExpression("Constraints[8]", "Params.sketch17_length")
pocket11 = body.newObject("PartDesign::Pocket", "Pocket010")
pocket11.Profile = sketch17
pocket11.setExpression("Length", "Params.pocket11_length")
doc.recompute()

polarpattern = body.newObject("PartDesign::PolarPattern", "PolarPattern")
polarpattern.Originals = [pocket11]
polarpattern.Axis = (doc.getObject("Y_Axis"), [""])
polarpattern.Angle = 360
polarpattern.Occurrences = 24
body.Tip = polarpattern

doc.recompute()
